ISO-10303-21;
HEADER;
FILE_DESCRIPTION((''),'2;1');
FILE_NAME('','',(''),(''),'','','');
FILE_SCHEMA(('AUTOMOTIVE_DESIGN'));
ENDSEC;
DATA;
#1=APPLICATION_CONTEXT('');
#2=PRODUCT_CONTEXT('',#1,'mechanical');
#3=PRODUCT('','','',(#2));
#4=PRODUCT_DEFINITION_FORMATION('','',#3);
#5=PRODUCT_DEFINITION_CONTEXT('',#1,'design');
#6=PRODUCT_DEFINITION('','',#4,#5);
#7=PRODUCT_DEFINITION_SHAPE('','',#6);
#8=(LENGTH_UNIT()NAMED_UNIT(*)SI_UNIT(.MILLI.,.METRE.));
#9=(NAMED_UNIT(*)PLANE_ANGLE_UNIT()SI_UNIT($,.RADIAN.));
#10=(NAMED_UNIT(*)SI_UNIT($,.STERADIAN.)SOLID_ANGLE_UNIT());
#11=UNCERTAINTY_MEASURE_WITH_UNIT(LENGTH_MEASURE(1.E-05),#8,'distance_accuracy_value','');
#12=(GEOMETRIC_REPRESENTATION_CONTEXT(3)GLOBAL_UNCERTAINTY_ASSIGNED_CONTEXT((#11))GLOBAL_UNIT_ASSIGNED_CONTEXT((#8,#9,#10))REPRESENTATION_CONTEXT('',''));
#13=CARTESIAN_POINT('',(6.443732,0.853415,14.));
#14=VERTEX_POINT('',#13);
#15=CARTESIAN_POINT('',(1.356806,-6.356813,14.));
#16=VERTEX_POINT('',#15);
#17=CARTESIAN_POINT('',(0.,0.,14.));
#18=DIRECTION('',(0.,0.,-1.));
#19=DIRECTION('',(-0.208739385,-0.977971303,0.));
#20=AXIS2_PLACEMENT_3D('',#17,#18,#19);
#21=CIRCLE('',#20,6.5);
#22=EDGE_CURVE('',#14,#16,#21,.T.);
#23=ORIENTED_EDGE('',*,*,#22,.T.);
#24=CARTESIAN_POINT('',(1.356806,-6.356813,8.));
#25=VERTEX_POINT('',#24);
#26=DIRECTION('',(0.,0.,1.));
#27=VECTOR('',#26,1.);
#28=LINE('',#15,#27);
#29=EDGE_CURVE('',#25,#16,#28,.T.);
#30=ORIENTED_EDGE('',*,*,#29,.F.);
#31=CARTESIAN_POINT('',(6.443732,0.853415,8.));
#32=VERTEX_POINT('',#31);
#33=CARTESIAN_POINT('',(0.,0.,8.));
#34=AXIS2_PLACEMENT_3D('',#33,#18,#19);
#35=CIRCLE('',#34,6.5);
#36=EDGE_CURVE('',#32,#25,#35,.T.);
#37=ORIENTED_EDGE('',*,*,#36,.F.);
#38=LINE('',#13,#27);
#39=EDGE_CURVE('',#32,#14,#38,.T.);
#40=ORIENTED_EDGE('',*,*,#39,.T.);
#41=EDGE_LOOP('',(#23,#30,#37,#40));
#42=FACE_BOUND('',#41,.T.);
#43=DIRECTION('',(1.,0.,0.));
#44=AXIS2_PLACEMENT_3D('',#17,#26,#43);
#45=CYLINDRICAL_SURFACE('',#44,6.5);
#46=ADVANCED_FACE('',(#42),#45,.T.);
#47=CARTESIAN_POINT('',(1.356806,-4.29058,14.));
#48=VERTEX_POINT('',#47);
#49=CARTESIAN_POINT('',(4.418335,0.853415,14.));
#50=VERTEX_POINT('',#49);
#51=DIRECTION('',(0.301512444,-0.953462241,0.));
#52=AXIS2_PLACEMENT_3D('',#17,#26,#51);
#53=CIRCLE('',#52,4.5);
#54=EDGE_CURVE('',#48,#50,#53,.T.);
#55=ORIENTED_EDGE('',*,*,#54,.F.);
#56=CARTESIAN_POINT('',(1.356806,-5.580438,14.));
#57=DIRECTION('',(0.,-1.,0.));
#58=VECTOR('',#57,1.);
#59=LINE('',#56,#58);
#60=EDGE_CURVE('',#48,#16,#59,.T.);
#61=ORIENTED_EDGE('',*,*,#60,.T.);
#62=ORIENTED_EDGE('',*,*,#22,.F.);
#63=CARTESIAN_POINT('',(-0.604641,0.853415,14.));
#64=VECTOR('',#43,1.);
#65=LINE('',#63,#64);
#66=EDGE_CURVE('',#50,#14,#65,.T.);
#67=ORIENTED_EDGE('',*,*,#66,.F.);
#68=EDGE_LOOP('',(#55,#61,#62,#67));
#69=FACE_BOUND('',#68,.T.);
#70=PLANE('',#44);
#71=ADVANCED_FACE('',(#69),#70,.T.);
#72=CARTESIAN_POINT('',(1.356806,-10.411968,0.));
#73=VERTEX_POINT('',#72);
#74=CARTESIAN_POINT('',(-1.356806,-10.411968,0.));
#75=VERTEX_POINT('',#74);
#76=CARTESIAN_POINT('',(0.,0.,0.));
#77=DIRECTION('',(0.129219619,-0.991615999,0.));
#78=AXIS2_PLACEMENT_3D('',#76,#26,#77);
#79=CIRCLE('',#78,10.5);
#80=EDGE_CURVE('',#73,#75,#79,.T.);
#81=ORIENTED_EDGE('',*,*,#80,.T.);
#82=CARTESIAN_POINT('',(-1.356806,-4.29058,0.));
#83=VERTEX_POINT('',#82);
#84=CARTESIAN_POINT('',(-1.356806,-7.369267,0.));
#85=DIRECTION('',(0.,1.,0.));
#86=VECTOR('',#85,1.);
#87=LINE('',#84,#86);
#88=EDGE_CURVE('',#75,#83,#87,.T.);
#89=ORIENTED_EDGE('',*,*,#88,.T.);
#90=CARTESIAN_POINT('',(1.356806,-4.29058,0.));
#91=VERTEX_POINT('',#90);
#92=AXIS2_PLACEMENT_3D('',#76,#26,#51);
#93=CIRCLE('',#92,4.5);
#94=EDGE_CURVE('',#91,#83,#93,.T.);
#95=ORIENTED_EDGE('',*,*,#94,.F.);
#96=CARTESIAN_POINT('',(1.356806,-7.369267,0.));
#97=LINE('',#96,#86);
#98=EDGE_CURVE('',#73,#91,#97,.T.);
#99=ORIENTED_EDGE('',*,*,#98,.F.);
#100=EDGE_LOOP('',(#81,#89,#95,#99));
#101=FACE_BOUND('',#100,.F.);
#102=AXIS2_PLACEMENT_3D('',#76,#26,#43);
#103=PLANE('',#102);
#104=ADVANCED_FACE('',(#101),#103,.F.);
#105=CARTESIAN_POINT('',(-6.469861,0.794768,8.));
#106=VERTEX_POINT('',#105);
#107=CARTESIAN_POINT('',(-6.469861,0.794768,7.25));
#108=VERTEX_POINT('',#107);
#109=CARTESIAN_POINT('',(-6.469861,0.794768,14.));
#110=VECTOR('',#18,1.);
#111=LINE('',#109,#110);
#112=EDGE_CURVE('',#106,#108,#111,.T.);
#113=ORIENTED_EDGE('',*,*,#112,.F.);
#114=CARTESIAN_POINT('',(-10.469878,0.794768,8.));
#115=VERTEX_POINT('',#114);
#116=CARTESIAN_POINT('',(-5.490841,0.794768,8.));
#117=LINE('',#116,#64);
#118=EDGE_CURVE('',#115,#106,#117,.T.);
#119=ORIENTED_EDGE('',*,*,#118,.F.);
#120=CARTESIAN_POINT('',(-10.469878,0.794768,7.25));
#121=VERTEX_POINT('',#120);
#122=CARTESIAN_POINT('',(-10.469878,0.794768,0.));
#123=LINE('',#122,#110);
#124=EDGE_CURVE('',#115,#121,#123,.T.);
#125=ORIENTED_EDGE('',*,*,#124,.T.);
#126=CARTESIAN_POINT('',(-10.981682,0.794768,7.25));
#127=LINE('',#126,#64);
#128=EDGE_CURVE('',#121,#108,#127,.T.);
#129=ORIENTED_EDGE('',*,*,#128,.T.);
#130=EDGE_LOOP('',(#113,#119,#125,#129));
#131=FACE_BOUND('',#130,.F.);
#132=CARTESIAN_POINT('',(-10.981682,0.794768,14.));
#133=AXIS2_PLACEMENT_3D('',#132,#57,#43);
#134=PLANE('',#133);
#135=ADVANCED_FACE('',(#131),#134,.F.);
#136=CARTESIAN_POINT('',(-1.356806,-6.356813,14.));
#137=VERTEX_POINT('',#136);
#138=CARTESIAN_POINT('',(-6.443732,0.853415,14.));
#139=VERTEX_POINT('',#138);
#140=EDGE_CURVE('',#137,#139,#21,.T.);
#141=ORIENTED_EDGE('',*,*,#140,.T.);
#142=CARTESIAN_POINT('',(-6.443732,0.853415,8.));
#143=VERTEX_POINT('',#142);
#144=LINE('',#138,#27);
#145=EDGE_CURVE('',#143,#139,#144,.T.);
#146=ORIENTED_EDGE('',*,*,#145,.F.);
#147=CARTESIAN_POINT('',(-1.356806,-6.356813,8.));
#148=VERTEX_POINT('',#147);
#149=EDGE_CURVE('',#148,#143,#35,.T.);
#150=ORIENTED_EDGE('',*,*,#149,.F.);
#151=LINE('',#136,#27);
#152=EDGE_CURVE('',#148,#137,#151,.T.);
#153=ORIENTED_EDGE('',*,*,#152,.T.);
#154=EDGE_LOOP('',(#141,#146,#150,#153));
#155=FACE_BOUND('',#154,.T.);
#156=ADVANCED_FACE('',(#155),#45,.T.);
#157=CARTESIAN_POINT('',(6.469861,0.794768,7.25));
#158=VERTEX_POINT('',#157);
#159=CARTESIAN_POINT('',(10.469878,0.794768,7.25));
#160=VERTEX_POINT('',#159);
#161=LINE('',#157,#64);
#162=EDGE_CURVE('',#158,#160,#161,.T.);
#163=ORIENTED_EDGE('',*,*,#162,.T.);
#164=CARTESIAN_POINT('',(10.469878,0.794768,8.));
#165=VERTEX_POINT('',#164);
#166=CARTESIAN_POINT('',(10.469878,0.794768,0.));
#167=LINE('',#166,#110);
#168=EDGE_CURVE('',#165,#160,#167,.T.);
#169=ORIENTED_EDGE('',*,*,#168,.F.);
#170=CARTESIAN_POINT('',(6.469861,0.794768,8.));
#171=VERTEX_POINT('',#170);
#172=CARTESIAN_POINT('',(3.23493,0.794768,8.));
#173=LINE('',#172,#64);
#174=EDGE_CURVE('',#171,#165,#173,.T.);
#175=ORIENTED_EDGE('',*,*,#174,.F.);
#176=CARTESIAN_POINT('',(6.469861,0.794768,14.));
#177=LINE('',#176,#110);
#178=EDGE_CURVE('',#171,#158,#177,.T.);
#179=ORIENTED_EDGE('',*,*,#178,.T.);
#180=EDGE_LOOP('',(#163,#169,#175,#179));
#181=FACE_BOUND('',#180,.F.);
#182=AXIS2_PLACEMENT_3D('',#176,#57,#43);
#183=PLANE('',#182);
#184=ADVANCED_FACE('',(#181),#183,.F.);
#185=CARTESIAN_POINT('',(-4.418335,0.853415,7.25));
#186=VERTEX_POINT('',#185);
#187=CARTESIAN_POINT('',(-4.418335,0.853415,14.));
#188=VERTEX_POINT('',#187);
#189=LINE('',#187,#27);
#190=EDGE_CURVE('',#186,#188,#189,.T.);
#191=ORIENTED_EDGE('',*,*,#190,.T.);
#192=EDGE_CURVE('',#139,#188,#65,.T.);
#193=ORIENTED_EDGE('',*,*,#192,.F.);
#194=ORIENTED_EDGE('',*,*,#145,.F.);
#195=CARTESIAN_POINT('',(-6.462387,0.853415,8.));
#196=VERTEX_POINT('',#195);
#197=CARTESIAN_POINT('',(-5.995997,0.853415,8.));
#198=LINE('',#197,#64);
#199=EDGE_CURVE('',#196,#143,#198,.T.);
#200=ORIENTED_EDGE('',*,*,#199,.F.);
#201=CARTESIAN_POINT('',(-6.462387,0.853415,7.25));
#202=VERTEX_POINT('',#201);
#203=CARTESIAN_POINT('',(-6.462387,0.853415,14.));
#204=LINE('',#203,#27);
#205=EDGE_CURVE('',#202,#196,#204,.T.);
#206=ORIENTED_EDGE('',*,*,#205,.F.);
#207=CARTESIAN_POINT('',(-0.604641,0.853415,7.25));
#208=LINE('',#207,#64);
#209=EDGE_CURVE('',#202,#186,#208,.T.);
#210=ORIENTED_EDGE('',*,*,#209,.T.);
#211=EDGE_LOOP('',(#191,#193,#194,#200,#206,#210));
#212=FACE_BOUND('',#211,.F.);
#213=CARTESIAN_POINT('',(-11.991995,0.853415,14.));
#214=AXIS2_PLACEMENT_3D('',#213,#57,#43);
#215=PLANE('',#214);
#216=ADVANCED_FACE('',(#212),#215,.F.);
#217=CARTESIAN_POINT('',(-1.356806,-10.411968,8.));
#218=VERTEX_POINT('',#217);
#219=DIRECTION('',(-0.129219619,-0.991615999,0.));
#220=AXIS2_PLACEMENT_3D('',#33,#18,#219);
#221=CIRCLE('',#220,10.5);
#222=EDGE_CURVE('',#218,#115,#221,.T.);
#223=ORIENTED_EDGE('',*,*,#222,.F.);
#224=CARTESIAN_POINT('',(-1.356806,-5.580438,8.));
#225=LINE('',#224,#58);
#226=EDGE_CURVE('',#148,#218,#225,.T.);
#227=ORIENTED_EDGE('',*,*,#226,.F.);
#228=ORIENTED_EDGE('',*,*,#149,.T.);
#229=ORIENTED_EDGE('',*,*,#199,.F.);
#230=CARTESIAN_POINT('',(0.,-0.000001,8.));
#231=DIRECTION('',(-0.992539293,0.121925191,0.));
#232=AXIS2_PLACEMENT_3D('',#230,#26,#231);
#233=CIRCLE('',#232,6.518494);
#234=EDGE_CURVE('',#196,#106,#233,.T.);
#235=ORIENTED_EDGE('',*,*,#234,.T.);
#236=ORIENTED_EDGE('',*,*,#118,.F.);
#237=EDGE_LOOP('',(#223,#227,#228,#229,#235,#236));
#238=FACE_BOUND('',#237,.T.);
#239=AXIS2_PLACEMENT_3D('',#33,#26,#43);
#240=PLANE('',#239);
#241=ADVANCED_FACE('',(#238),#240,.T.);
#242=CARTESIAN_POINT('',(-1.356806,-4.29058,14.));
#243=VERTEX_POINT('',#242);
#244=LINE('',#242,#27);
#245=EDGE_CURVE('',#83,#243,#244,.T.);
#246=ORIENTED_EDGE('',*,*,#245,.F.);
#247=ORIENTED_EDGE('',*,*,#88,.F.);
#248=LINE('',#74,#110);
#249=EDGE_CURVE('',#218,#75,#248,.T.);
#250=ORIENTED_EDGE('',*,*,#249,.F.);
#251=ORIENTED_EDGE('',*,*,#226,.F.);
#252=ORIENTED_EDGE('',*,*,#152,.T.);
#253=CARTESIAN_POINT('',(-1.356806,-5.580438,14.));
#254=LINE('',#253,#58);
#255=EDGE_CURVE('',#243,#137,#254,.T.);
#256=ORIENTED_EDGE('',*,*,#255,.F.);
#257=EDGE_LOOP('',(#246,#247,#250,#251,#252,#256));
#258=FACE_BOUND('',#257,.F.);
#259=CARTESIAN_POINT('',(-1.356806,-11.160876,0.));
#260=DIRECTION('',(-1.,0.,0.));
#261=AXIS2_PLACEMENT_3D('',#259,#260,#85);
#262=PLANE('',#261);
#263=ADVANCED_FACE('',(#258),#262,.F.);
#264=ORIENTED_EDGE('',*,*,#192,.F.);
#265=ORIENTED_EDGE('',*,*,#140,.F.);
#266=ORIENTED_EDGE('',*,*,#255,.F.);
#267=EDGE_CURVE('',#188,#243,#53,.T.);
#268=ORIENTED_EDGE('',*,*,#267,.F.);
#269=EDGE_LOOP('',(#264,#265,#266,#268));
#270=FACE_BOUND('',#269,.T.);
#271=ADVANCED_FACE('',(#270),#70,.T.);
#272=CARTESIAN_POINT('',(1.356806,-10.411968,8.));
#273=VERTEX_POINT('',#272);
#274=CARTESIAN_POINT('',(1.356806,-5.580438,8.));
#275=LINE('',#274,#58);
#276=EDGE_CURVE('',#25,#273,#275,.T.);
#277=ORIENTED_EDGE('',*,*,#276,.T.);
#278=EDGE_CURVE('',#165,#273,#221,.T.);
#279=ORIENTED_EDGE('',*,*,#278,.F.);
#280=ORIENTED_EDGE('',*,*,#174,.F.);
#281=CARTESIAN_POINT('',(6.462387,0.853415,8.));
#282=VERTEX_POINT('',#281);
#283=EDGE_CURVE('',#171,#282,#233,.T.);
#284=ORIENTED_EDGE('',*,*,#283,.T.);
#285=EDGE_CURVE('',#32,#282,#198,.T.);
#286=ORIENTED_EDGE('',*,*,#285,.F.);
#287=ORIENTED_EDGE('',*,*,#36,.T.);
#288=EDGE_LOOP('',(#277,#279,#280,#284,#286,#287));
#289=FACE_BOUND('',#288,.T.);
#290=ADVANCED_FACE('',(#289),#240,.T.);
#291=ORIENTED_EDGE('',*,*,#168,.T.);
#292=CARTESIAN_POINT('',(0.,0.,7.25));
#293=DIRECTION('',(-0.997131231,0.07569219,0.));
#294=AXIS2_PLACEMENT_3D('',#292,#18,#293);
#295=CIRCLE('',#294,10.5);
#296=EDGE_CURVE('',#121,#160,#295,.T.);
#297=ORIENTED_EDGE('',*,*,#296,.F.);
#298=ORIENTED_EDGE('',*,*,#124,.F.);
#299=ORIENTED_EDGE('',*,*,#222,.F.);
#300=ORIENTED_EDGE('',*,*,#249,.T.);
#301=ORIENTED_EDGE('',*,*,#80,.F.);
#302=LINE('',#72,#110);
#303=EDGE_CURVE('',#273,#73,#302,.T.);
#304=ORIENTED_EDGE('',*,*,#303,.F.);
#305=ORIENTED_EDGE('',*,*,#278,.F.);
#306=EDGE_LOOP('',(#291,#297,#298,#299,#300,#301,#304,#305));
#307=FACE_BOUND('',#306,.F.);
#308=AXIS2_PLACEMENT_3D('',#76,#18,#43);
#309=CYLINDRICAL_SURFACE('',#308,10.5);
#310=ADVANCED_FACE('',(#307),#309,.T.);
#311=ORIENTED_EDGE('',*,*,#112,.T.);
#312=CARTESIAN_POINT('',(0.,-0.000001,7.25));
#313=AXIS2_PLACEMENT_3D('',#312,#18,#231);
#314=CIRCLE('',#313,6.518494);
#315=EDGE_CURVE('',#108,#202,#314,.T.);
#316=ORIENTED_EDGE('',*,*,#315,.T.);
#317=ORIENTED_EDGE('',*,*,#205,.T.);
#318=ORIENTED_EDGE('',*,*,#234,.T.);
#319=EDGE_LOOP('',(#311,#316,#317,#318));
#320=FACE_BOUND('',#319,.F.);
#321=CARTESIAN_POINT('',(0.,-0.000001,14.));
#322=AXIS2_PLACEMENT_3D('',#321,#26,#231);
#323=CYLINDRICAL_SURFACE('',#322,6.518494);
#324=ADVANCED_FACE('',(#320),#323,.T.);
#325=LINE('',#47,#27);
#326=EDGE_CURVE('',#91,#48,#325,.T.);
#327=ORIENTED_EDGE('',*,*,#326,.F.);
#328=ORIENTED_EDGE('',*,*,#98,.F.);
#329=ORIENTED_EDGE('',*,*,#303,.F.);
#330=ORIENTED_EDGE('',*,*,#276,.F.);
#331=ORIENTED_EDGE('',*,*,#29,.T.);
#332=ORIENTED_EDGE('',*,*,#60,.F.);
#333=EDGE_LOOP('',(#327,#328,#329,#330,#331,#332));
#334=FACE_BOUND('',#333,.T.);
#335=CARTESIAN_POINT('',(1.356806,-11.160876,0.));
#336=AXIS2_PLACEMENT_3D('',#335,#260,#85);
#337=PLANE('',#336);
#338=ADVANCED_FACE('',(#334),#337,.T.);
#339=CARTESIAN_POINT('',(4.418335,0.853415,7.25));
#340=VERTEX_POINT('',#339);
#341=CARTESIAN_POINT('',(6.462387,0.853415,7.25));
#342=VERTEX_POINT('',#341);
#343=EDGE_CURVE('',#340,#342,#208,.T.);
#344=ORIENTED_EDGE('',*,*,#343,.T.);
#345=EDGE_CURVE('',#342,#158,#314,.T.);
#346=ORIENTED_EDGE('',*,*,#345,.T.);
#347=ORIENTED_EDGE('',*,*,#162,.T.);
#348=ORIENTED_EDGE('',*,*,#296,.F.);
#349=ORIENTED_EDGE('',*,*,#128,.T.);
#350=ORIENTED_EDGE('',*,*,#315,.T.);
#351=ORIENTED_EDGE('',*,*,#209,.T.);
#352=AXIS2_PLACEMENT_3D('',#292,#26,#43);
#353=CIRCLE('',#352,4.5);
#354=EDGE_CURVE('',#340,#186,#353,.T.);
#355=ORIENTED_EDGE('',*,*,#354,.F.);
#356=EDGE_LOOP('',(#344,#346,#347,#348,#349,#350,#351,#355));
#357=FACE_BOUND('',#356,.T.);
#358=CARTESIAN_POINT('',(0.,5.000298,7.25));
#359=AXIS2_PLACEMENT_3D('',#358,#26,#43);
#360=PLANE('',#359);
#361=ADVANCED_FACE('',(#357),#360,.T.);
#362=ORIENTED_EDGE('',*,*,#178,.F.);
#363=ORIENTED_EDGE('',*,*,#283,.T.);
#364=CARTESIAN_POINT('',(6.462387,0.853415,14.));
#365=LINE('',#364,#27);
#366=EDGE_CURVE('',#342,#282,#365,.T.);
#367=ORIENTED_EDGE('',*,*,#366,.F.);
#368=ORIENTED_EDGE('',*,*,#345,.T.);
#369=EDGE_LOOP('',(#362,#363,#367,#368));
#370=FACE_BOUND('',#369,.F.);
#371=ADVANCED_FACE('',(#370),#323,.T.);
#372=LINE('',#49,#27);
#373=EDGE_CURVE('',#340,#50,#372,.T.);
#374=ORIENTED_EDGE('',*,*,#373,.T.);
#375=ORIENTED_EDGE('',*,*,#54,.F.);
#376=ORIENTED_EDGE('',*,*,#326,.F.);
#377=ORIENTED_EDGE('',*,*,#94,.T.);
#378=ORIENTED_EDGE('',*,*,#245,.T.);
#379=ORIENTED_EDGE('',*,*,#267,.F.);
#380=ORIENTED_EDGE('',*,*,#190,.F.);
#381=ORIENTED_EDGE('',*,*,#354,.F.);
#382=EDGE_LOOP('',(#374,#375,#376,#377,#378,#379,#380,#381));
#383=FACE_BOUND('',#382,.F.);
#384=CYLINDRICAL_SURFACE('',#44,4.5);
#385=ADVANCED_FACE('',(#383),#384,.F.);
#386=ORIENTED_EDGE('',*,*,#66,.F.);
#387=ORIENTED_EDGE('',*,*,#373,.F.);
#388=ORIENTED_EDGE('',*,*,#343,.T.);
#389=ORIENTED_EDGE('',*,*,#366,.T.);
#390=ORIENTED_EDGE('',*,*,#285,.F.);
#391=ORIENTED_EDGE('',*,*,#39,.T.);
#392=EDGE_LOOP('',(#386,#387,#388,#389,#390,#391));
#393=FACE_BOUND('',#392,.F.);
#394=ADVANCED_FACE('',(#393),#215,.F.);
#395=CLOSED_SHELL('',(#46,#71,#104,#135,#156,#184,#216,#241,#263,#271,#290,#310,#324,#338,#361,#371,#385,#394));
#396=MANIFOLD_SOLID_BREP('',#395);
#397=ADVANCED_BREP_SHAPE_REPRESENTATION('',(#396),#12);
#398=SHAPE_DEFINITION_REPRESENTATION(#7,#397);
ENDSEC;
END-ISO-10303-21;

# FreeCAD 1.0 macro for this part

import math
import FreeCAD as App
import Part
import Sketcher
from FreeCAD import Vector


def add_polygon(sketch, points):
    """Adds a closed chain of lines whose ends are joined by coincident constraints."""
    first, n = sketch.GeometryCount, len(points)
    for a, b in zip(points, points[1:] + points[:1]):
        sketch.addGeometry(Part.LineSegment(App.Vector(*a, 0), App.Vector(*b, 0)), False)
    for i in range(n):
        sketch.addConstraint(Sketcher.Constraint("Coincident", first + i, 2, first + (i + 1) % n, 1))

doc = App.newDocument("Part")
body = doc.addObject("PartDesign::Body", "Body")

# Sketch on XY plane
sketch1 = doc.addObject("Sketcher::SketchObject", "Sketch")
body.addObject(sketch1)
sketch1.AttachmentSupport = (doc.XY_Plane, [""])
sketch1.MapMode = "FlatFace"
sketch1.addGeometry(Part.Circle(Vector(0, 0, 0), Vector(0, 0, 1), 10), False)
sketch1.addConstraint([
    Sketcher.Constraint("Coincident", 0, 3, -1, 1),
    Sketcher.Constraint("Diameter", 0, 21.0),
])
pad1 = doc.addObject("PartDesign::Pad", "Pad")
body.addObject(pad1)
pad1.Profile = sketch1
pad1.Length = 14

# Sketch on XY plane
sketch2 = doc.addObject("Sketcher::SketchObject", "Sketch001")
body.addObject(sketch2)
sketch2.AttachmentSupport = (doc.XY_Plane, [""])
sketch2.MapMode = "FlatFace"
sketch2.AttachmentOffset = App.Placement(Vector(0, 0, 14), App.Rotation())
sketch2.addGeometry([
    Part.Circle(Vector(0, 0, 0), Vector(0, 0, 1), 10),
    Part.Circle(Vector(0, 0, 0), Vector(0, 0, 1), 6),
], False)
sketch2.addConstraint([
    Sketcher.Constraint("Coincident", 0, 3, -1, 1),
    Sketcher.Constraint("Coincident", 1, 3, -1, 1),
    Sketcher.Constraint("Diameter", 0, 21.0),
    Sketcher.Constraint("Diameter", 1, 13.0),
])
pocket1 = doc.addObject("PartDesign::Pocket", "Pocket")
body.addObject(pocket1)
pocket1.Profile = sketch2
pocket1.Length = 6

# Sketch on XY plane
sketch3 = doc.addObject("Sketcher::SketchObject", "Sketch002")
body.addObject(sketch3)
sketch3.AttachmentSupport = (doc.XY_Plane, [""])
sketch3.MapMode = "FlatFace"
sketch3.AttachmentOffset = App.Placement(Vector(0, 0, 14), App.Rotation())
sketch3.addGeometry(Part.Circle(Vector(0, 0, 0), Vector(0, 0, 1), 4.5), False)
sketch3.addConstraint([
    Sketcher.Constraint("Coincident", 0, 3, -1, 1),
    Sketcher.Constraint("Diameter", 0, 9.0),
])
pocket2 = doc.addObject("PartDesign::Pocket", "Pocket001")
body.addObject(pocket2)
pocket2.Profile = sketch3
pocket2.Type = "ThroughAll"

# Sketch on XY plane
sketch4 = doc.addObject("Sketcher::SketchObject", "Sketch003")
body.addObject(sketch4)
sketch4.AttachmentSupport = (doc.XY_Plane, [""])
sketch4.MapMode = "FlatFace"
add_polygon(sketch4, [(-1.4, -3.6), (-1.4, -11.2), (1.4, -11.2), (1.4, -3.6)])  # lines 0-3
sketch4.addConstraint([
    Sketcher.Constraint("Vertical", 0),
    Sketcher.Constraint("Horizontal", 1),
    Sketcher.Constraint("Vertical", 2),
    Sketcher.Constraint("Horizontal", 3),
    Sketcher.Constraint("DistanceX", 1, 1, 1, 2, 2.713612),
    Sketcher.Constraint("DistanceY", 0, 2, 0, 1, 7.583218),
    Sketcher.Constraint("DistanceY", 2, 2, -1, 1, 3.577658),
    Sketcher.Constraint("DistanceX", 0, 2, -1, 1, 1.356806),
])
pocket3 = doc.addObject("PartDesign::Pocket", "Pocket002")
body.addObject(pocket3)
pocket3.Profile = sketch4
pocket3.Type = "ThroughAll"
pocket3.Reversed = True

# Sketch on XY plane
sketch5 = doc.addObject("Sketcher::SketchObject", "Sketch004")
body.addObject(sketch5)
sketch5.AttachmentSupport = (doc.XY_Plane, [""])
sketch5.MapMode = "FlatFace"
sketch5.AttachmentOffset = App.Placement(Vector(0, 0, 14), App.Rotation())
sketch5.addGeometry([
    Part.ArcOfCircle(Part.Circle(Vector(0, 0, 0), Vector(0, 0, 1), 11), math.radians(4), math.radians(176)),
    Part.LineSegment(Vector(-11, 0.8, 0), Vector(-6.5, 0.8, 0)),
    Part.ArcOfCircle(Part.Circle(Vector(0, 0, 0), Vector(0, 0, 1), 6.5), math.radians(7), math.radians(173)),
    Part.LineSegment(Vector(6.5, 0.8, 0), Vector(11, 0.8, 0)),
], False)
sketch5.addConstraint([
    Sketcher.Constraint("Coincident", 0, 2, 1, 1),
    Sketcher.Constraint("Coincident", 1, 2, 2, 2),
    Sketcher.Constraint("Coincident", 2, 1, 3, 1),
    Sketcher.Constraint("Coincident", 3, 2, 0, 1),
    Sketcher.Constraint("Horizontal", 1),
    Sketcher.Constraint("Horizontal", 3),
    Sketcher.Constraint("Coincident", 0, 3, -1, 1),
    Sketcher.Constraint("Coincident", 2, 3, -1, 1),
    Sketcher.Constraint("Horizontal", 1, 2, 2, 1),
    Sketcher.Constraint("Radius", 0, 11.010404),
    Sketcher.Constraint("Radius", 2, 6.518494),
    Sketcher.Constraint("DistanceX", 1, 1, 1, 2, 4.511821),
])
pocket4 = doc.addObject("PartDesign::Pocket", "Pocket003")
body.addObject(pocket4)
pocket4.Profile = sketch5
pocket4.Length = 6.75

# Sketch on XY plane
sketch6 = doc.addObject("Sketcher::SketchObject", "Sketch005")
body.addObject(sketch6)
sketch6.AttachmentSupport = (doc.XY_Plane, [""])
sketch6.MapMode = "FlatFace"
sketch6.AttachmentOffset = App.Placement(Vector(0, 0, 14), App.Rotation())
add_polygon(sketch6, [(-12, 12), (-12, 1), (11, 1), (11, 12)])  # lines 0-3
sketch6.addConstraint([
    Sketcher.Constraint("Vertical", 0),
    Sketcher.Constraint("Horizontal", 1),
    Sketcher.Constraint("Vertical", 2),
    Sketcher.Constraint("Horizontal", 3),
    Sketcher.Constraint("DistanceY", 0, 2, 0, 1, 11.08392),
    Sketcher.Constraint("DistanceX", 1, 1, 1, 2, 22.774708),
    Sketcher.Constraint("DistanceX", 0, 2, -1, 1, 11.991995),
    Sketcher.Constraint("DistanceY", -1, 1, 0, 2, 0.853415),
])
pocket5 = doc.addObject("PartDesign::Pocket", "Pocket004")
body.addObject(pocket5)
pocket5.Profile = sketch6
pocket5.Length = 6.75

doc.recompute()
